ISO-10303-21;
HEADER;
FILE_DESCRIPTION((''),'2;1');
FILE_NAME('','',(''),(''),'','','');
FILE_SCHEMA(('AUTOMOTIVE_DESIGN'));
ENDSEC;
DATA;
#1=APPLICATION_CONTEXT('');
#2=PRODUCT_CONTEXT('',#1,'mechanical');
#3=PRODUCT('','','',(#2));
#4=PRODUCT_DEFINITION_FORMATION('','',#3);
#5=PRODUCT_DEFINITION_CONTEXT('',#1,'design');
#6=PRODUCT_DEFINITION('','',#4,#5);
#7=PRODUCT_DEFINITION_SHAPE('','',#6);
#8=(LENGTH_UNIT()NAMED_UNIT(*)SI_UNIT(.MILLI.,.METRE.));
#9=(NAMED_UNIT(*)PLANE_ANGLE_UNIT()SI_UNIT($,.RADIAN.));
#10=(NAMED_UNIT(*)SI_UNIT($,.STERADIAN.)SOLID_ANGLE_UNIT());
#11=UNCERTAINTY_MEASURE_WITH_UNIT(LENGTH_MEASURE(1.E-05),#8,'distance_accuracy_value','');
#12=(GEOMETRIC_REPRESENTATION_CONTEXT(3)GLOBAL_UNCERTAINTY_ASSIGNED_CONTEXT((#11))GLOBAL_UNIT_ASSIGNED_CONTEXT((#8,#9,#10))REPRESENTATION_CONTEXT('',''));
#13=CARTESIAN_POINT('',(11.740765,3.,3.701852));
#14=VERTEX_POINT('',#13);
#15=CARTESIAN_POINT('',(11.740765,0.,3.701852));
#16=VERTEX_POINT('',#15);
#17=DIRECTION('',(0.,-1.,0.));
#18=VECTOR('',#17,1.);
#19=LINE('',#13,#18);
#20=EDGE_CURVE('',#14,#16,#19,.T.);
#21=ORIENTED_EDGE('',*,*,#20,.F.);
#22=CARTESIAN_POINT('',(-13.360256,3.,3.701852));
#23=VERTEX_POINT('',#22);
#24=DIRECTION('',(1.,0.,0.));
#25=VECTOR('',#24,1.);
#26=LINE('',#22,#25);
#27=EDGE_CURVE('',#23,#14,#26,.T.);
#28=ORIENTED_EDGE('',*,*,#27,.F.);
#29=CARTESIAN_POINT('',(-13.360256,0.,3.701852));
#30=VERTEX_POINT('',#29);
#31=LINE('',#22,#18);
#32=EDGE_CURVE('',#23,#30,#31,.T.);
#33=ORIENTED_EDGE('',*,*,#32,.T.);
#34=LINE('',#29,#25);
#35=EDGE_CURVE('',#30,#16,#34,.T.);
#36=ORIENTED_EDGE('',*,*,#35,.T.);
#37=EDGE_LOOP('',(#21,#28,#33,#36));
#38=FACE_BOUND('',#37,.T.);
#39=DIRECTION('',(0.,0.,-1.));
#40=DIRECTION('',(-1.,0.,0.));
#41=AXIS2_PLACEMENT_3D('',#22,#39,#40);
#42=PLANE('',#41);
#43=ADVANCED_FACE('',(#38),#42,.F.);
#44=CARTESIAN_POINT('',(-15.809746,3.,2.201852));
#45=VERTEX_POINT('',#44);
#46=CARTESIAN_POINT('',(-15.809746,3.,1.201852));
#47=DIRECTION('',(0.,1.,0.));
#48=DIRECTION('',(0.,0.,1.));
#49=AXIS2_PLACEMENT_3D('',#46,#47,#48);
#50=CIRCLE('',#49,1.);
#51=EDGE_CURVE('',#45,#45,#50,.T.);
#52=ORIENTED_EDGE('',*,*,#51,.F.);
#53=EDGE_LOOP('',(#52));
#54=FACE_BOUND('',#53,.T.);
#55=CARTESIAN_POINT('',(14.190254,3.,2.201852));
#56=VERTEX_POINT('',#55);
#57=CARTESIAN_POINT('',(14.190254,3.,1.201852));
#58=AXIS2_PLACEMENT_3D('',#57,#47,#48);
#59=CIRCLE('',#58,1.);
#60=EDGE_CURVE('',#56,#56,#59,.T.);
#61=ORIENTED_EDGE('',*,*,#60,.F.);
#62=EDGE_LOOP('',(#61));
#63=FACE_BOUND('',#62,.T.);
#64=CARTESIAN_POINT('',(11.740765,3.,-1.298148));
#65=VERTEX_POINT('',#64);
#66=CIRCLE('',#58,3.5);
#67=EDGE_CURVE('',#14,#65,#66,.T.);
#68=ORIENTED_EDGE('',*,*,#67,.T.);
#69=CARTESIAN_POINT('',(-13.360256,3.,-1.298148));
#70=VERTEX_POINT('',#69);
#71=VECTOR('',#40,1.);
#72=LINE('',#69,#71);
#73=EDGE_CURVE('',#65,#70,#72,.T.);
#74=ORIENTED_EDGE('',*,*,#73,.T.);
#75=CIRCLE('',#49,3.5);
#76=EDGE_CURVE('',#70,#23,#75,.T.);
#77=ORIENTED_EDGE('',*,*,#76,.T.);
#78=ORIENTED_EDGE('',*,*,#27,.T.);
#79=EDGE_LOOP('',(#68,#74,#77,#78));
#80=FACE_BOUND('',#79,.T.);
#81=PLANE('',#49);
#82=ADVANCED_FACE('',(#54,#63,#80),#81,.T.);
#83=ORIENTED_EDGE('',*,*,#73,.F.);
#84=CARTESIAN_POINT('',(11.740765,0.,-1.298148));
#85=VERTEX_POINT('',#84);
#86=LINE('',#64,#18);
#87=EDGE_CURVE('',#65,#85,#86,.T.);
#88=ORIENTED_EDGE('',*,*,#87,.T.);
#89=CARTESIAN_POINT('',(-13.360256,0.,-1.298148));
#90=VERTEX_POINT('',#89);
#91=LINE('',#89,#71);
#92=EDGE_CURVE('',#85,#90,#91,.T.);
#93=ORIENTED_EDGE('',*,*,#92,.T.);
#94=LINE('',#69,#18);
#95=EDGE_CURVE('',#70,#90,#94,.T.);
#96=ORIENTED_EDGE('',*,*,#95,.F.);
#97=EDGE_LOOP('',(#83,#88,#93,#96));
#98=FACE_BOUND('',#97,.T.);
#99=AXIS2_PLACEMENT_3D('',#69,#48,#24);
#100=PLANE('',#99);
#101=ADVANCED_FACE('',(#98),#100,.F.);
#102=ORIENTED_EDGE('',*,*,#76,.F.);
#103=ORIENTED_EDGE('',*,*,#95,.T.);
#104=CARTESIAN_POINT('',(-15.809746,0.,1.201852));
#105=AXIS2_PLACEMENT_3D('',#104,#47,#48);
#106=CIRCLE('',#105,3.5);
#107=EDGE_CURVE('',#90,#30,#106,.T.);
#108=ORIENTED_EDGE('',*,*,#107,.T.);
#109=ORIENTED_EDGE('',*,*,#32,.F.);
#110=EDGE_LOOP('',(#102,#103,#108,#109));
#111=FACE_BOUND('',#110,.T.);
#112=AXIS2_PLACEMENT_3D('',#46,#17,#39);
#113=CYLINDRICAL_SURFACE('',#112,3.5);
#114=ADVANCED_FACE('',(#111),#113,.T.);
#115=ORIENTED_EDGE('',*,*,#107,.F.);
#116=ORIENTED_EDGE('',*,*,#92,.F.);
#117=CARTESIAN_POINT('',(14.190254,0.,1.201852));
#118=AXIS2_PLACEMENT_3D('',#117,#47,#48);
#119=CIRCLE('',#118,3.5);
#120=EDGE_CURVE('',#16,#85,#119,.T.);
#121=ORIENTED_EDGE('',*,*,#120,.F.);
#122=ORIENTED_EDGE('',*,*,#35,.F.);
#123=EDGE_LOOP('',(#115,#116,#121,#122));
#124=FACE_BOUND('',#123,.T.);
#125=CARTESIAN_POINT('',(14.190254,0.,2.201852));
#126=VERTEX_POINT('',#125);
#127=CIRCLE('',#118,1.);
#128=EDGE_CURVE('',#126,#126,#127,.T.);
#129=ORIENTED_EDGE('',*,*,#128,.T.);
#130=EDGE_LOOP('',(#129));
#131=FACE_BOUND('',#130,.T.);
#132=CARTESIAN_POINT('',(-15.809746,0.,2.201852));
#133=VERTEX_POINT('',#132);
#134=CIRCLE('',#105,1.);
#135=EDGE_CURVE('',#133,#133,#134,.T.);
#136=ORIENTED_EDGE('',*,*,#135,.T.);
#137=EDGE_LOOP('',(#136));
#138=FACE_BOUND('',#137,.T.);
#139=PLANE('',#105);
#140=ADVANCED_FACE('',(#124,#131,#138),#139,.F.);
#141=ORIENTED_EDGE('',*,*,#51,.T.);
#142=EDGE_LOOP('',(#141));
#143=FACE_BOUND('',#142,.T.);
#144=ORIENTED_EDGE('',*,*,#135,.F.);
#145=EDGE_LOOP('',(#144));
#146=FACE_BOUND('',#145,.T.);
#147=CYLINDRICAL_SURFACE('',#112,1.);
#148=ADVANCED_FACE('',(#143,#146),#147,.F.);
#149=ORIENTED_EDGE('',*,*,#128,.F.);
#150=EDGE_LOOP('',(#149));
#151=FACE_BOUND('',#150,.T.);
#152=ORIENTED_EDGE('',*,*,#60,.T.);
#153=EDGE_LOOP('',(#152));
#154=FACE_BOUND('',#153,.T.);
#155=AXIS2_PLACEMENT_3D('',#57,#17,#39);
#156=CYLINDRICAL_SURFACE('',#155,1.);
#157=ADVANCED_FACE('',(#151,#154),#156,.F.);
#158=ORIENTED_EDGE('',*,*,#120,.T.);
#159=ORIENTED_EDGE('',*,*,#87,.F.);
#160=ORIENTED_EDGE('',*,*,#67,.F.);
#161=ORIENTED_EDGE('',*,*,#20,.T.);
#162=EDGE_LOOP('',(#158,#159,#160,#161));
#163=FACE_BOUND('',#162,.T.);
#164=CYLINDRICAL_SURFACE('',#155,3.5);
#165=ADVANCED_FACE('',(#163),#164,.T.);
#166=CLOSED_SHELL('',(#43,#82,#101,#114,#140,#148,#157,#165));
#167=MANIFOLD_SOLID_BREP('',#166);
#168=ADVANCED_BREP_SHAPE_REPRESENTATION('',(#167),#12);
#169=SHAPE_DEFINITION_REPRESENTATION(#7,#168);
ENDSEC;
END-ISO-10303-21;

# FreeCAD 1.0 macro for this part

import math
import FreeCAD as App
import Part
import Sketcher
from FreeCAD import Vector

doc = App.newDocument("Part")
params = doc.addObject("Spreadsheet::Sheet", "Params")
for row, (alias, value) in enumerate([
    ("sketch1_diameter", "2 mm"),
    ("sketch1_radius", "3.5 mm"),
    ("pad1_length", "3 mm"),
], start=1):
    params.set(f"A{row}", alias)
    params.set(f"B{row}", "=" + value)
    params.setAlias(f"B{row}", alias)

body = doc.addObject("PartDesign::Body", "Body")

# Sketch on XZ plane
sketch1 = body.newObject("Sketcher::SketchObject", "Sketch")
sketch1.AttachmentSupport = (doc.getObject("XZ_Plane"), [""])
sketch1.MapMode = "FlatFace"
sketch1.addGeometry(Part.LineSegment(Vector(11.7, -1.3, 0), Vector(-13.4, -1.3, 0)), False)
sketch1.addGeometry(Part.ArcOfCircle(Part.Circle(Vector(-15.8, 1.2, 0), Vector(0, 0, 1), 3.5), math.radians(46), math.radians(314)), False)
sketch1.addGeometry(Part.LineSegment(Vector(-13.4, 3.7, 0), Vector(11.7, 3.7, 0)), False)
sketch1.addGeometry(Part.ArcOfCircle(Part.Circle(Vector(14.2, 1.2, 0), Vector(0, 0, 1), 3.5), math.radians(-134), math.radians(134)), False)
sketch1.addGeometry(Part.Circle(Vector(14.2, 1.2, 0), Vector(0, 0, 1), 1), False)
sketch1.addGeometry(Part.Circle(Vector(-15.8, 1.2, 0), Vector(0, 0, 1), 1), False)
sketch1.addConstraint(Sketcher.Constraint("Coincident", 0, 2, 1, 2))
sketch1.addConstraint(Sketcher.Constraint("Coincident", 1, 1, 2, 1))
sketch1.addConstraint(Sketcher.Constraint("Coincident", 2, 2, 3, 2))
sketch1.addConstraint(Sketcher.Constraint("Coincident", 3, 1, 0, 1))
sketch1.addConstraint(Sketcher.Constraint("Horizontal", 0))
sketch1.addConstraint(Sketcher.Constraint("Horizontal", 2))
sketch1.addConstraint(Sketcher.Constraint("Coincident", 4, 3, 3, 3))
sketch1.addConstraint(Sketcher.Constraint("Coincident", 5, 3, 1, 3))
sketch1.addConstraint(Sketcher.Constraint("Equal", 1, 3))
sketch1.addConstraint(Sketcher.Constraint("Equal", 4, 5))
sketch1.addConstraint(Sketcher.Constraint("Horizontal", 1, 3, 3, 3))
sketch1.addConstraint(Sketcher.Constraint("Vertical", 0, 2, 1, 1))
sketch1.addConstraint(Sketcher.Constraint("Diameter", 4, 2.0))
sketch1.addConstraint(Sketcher.Constraint("Radius", 1, 3.5))
sketch1.addConstraint(Sketcher.Constraint("DistanceX", 1, 3, 3, 3, 30.0))
sketch1.addConstraint(Sketcher.Constraint("DistanceY", 0, 2, 1, 1, 5.0))
sketch1.addConstraint(Sketcher.Constraint("DistanceY", -1, 1, 1, 3, 1.201852))
sketch1.addConstraint(Sketcher.Constraint("DistanceX", 1, 3, -1, 1, 15.809746))
sketch1.setExpression("Constraints[12]", "Params.sketch1_diameter")
sketch1.setExpression("Constraints[13]", "Params.sketch1_radius")
pad1 = body.newObject("PartDesign::Pad", "Pad")
pad1.Profile = sketch1
pad1.setExpression("Length", "Params.pad1_length")
pad1.Reversed = True

doc.recompute()
